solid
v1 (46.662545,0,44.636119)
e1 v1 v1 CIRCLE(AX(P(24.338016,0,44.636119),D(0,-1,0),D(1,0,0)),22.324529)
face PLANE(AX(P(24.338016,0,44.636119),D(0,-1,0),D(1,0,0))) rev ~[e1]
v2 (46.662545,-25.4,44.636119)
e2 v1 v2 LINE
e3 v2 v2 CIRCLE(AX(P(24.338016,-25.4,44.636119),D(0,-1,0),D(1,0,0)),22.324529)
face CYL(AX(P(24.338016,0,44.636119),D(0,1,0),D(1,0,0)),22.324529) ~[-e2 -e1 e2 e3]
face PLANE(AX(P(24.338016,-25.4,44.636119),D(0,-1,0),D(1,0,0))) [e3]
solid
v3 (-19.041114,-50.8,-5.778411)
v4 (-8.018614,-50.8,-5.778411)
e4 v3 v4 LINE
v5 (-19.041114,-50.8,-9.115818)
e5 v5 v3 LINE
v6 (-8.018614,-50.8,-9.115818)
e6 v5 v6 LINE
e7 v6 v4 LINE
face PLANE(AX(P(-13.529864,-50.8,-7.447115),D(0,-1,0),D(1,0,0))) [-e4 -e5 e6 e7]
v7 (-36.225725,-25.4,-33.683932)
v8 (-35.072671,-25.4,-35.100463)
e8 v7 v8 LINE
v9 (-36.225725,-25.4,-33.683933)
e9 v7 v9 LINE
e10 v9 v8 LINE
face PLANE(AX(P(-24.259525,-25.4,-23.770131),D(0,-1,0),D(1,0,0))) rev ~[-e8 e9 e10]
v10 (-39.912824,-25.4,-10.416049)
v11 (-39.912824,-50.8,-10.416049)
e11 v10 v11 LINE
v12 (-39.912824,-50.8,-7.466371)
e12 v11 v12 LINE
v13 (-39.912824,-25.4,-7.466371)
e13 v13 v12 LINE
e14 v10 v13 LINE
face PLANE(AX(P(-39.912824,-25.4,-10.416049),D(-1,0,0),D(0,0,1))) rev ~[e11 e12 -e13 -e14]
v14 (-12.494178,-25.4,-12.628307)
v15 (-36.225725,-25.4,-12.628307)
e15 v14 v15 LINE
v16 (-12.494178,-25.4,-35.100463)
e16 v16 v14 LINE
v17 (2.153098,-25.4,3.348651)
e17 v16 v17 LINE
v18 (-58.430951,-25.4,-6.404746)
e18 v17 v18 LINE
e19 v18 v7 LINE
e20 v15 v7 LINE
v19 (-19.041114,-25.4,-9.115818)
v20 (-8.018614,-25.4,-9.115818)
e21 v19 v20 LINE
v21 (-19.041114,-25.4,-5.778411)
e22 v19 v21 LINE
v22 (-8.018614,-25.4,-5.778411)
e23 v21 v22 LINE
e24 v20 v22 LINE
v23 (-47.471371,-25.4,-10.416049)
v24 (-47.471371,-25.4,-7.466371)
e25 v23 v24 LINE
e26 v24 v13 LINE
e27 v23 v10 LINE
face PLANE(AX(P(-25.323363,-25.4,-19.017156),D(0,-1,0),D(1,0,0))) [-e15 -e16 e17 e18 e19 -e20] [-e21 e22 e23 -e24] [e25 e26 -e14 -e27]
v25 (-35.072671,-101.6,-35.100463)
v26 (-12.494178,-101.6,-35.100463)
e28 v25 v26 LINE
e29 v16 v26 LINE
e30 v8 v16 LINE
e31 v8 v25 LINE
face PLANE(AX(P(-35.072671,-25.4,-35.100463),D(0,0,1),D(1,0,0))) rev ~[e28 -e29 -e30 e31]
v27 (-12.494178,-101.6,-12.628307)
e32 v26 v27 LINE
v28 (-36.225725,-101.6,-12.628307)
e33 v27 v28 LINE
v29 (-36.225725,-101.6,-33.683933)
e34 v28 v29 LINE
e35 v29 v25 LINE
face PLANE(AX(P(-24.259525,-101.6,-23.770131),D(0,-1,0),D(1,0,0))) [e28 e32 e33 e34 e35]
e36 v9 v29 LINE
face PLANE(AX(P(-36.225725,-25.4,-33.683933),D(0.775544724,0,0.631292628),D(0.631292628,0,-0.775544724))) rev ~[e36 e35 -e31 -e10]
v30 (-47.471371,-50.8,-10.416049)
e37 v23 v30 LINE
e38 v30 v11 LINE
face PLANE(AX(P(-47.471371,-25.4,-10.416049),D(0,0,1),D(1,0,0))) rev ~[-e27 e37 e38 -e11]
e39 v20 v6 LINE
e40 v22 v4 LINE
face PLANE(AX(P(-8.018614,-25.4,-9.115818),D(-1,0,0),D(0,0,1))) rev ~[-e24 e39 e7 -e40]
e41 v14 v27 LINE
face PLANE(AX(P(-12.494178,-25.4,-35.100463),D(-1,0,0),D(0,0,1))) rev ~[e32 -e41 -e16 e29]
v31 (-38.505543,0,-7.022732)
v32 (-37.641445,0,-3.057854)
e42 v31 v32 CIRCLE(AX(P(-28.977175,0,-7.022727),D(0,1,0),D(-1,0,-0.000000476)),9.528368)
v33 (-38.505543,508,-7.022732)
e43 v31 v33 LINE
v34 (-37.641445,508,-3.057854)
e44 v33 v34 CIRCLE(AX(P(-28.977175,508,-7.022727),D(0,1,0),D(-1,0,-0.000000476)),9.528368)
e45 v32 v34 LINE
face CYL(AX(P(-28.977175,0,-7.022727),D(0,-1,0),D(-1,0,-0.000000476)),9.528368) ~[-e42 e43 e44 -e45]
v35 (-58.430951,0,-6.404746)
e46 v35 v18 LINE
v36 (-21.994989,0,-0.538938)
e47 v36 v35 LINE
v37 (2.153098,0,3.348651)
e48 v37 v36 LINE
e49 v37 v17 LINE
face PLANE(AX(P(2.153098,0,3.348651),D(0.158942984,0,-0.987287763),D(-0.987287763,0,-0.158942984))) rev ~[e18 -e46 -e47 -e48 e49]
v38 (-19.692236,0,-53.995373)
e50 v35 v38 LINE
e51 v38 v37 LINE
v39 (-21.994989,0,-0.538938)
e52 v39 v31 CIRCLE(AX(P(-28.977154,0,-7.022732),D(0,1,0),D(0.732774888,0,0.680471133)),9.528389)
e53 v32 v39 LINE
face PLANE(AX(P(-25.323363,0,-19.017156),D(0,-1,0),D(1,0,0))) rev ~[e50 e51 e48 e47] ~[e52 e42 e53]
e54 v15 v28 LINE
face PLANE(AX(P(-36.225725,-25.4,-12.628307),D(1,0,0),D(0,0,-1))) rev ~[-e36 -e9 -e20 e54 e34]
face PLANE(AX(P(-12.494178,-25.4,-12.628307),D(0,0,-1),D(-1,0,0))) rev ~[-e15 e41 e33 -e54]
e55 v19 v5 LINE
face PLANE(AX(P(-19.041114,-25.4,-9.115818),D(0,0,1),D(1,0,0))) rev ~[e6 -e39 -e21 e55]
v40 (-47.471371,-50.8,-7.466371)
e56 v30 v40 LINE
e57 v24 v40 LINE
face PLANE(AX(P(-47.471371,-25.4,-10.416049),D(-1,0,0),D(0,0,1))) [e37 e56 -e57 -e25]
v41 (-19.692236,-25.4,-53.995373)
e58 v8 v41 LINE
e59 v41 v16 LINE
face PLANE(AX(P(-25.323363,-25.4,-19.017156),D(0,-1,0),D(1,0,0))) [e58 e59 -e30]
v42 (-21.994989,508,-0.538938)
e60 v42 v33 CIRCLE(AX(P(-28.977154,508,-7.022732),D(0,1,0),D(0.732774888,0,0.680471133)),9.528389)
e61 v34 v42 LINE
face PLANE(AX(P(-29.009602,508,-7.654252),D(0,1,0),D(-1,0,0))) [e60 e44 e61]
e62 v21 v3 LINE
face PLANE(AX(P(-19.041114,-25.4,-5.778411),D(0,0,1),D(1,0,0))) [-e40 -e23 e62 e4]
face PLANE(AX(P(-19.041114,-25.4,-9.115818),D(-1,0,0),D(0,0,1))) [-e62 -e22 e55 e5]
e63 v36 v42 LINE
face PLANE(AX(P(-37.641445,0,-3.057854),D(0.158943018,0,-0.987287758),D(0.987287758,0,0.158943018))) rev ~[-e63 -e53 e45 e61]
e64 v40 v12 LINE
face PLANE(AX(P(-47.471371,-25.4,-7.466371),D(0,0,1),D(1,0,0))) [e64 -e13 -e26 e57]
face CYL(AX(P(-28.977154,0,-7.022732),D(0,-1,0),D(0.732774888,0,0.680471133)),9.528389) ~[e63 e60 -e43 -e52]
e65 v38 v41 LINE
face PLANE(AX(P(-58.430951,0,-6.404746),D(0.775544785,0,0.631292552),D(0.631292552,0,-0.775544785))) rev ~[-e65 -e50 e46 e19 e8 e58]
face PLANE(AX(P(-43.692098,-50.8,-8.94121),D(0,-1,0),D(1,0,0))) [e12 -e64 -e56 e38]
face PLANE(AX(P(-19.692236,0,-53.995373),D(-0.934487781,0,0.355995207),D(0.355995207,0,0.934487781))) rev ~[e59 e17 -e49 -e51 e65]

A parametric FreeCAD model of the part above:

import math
import FreeCAD as App
import Part
import Sketcher

V = App.Vector
Q = App.Units.Quantity


def add_polygon(sketch, points):
    """Adds a closed chain of lines whose ends are joined by coincident constraints."""
    first, n = sketch.GeometryCount, len(points)
    for a, b in zip(points, points[1:] + points[:1]):
        sketch.addGeometry(Part.LineSegment(App.Vector(*a, 0), App.Vector(*b, 0)), False)
    for i in range(n):
        sketch.addConstraint(Sketcher.Constraint("Coincident", first + i, 2, first + (i + 1) % n, 1))

doc = App.newDocument("Part")
body = doc.addObject("PartDesign::Body", "Body")
body.AllowCompound = True

# Sketch on XZ plane
sketch1 = body.newObject("Sketcher::SketchObject", "Sketch")
sketch1.AttachmentSupport = (doc.getObject("XZ_Plane"), [""])
sketch1.MapMode = "FlatFace"
sketch1.addGeometry(Part.Circle(V(24.338016, 44.636119, 0), V(0, 0, 1), 22.324529), False)  # 0
add_polygon(sketch1, [(-19.692236, -53.995373), (2.153098, 3.348651), (-58.430951, -6.404746)])  # lines 1-3
sketch1.addConstraint(Sketcher.Constraint("Equal", 1, 2))
sketch1.addConstraint(Sketcher.Constraint("Equal", 2, 3))
sketch1.addConstraint(Sketcher.Constraint("Diameter", 0, Q("44.649058 mm")))
sketch1.addConstraint(Sketcher.Constraint("DistanceX", -1, 1, 1, 2, Q("2.153098 mm")))
sketch1.addConstraint(Sketcher.Constraint("DistanceY", -1, 1, 0, 3, Q("44.636119 mm")))
sketch1.addConstraint(Sketcher.Constraint("DistanceY", -1, 1, 1, 2, Q("3.348651 mm")))
sketch1.addConstraint(Sketcher.Constraint("DistanceX", 2, 2, -1, 1, Q("58.430951 mm")))
sketch1.addConstraint(Sketcher.Constraint("Distance", 1, Q("61.364124 mm")))
sketch1.addConstraint(Sketcher.Constraint("DistanceX", -1, 1, 0, 3, Q("24.338016 mm")))
pad1 = body.newObject("PartDesign::Pad", "Pad")
pad1.Profile = sketch1
pad1.Length = Q("1 in")

# Sketch on XZ plane
sketch2 = body.newObject("Sketcher::SketchObject", "Sketch001")
sketch2.AttachmentSupport = (doc.getObject("XZ_Plane"), [""])
sketch2.MapMode = "FlatFace"
sketch2.addGeometry(Part.ArcOfCircle(Part.Circle(V(-28.977154, -7.022732, 0), V(0, 0, 1), 9.528389), math.radians(-180), math.radians(42.88047)), False)
sketch2.addGeometry(Part.ArcOfCircle(Part.Circle(V(-28.977175, -7.022727, 0), V(0, 0, 1), 9.528368), math.radians(155.410601), math.radians(180.000027)), False)
sketch2.addGeometry(Part.LineSegment(V(-37.641445, -3.057854, 0), V(-21.994989, -0.538938, 0)), False)
sketch2.addConstraint(Sketcher.Constraint("Tangent", 0, 1, 1, 2))
sketch2.addConstraint(Sketcher.Constraint("Coincident", 1, 1, 2, 1))
sketch2.addConstraint(Sketcher.Constraint("Coincident", 2, 2, 0, 2))
sketch2.addConstraint(Sketcher.Constraint("Radius", 0, Q("9.528389 mm")))
sketch2.addConstraint(Sketcher.Constraint("Radius", 1, Q("9.528368 mm")))
sketch2.addConstraint(Sketcher.Constraint("Distance", 2, Q("15.847919 mm")))
sketch2.addConstraint(Sketcher.Constraint("DistanceY", 0, 3, -1, 1, Q("7.022732 mm")))
sketch2.addConstraint(Sketcher.Constraint("DistanceY", 0, 1, -1, 1, Q("7.022732 mm")))
sketch2.addConstraint(Sketcher.Constraint("DistanceX", 2, 2, -1, 1, Q("21.994989 mm")))
sketch2.addConstraint(Sketcher.Constraint("DistanceY", 2, 2, -1, 1, Q("0.538938 mm")))
pad2 = body.newObject("PartDesign::Pad", "Pad001")
pad2.Profile = sketch2
pad2.Length = Q("20 in")
pad2.Reversed = True

# Sketch on XZ plane
sketch3 = body.newObject("Sketcher::SketchObject", "Sketch002")
sketch3.AttachmentSupport = (doc.getObject("XZ_Plane"), [""])
sketch3.MapMode = "FlatFace"
sketch3.AttachmentOffset = App.Placement(V(0, 0, 1 * 25.4), App.Rotation())
add_polygon(sketch3, [(-12.494178, -12.628307), (-36.225725, -12.628307), (-36.225725, -33.683933), (-35.072671, -35.100463), (-12.494178, -35.100463)])  # lines 0-4
sketch3.addConstraint(Sketcher.Constraint("Horizontal", 0))
sketch3.addConstraint(Sketcher.Constraint("Vertical", 1))
sketch3.addConstraint(Sketcher.Constraint("Horizontal", 3))
sketch3.addConstraint(Sketcher.Constraint("Vertical", 4))
sketch3.addConstraint(Sketcher.Constraint("DistanceX", 0, 2, 0, 1, Q("23.731547 mm")))
sketch3.addConstraint(Sketcher.Constraint("DistanceX", 3, 1, 3, 2, Q("22.578493 mm")))
sketch3.addConstraint(Sketcher.Constraint("DistanceY", 1, 2, 1, 1, Q("21.055626 mm")))
sketch3.addConstraint(Sketcher.Constraint("DistanceY", 4, 1, 4, 2, Q("22.472156 mm")))
sketch3.addConstraint(Sketcher.Constraint("DistanceX", 2, 2, -1, 1, Q("35.072671 mm")))
sketch3.addConstraint(Sketcher.Constraint("DistanceY", 0, 2, -1, 1, Q("12.628307 mm")))
pad3 = body.newObject("PartDesign::Pad", "Pad002")
pad3.Profile = sketch3
pad3.Length = Q("3 in")

# Sketch on XZ plane
sketch4 = body.newObject("Sketcher::SketchObject", "Sketch003")
sketch4.AttachmentSupport = (doc.getObject("XZ_Plane"), [""])
sketch4.MapMode = "FlatFace"
sketch4.AttachmentOffset = App.Placement(V(0, 0, 1 * 25.4), App.Rotation())
add_polygon(sketch4, [(-47.471371, -7.466371), (-47.471371, -10.416049), (-39.912824, -10.416049), (-39.912824, -7.466371)])  # lines 0-3
sketch4.addConstraint(Sketcher.Constraint("Vertical", 0))
sketch4.addConstraint(Sketcher.Constraint("Horizontal", 1))
sketch4.addConstraint(Sketcher.Constraint("Vertical", 2))
sketch4.addConstraint(Sketcher.Constraint("Horizontal", 3))
sketch4.addConstraint(Sketcher.Constraint("DistanceX", 1, 1, 1, 2, Q("7.558547 mm")))
sketch4.addConstraint(Sketcher.Constraint("DistanceY", 0, 2, 0, 1, Q("2.949678 mm")))
sketch4.addConstraint(Sketcher.Constraint("DistanceX", 0, 2, -1, 1, Q("47.471371 mm")))
sketch4.addConstraint(Sketcher.Constraint("DistanceY", 0, 2, -1, 1, Q("10.416049 mm")))
pad4 = body.newObject("PartDesign::Pad", "Pad003")
pad4.Profile = sketch4
pad4.Length = Q("1 in")

# Sketch on XZ plane
sketch5 = body.newObject("Sketcher::SketchObject", "Sketch004")
sketch5.AttachmentSupport = (doc.getObject("XZ_Plane"), [""])
sketch5.MapMode = "FlatFace"
sketch5.AttachmentOffset = App.Placement(V(0, 0, 1 * 25.4), App.Rotation())
add_polygon(sketch5, [(-19.041114, -5.778411), (-19.041114, -9.115818), (-8.018614, -9.115818), (-8.018614, -5.778411)])  # lines 0-3
sketch5.addConstraint(Sketcher.Constraint("Vertical", 0))
sketch5.addConstraint(Sketcher.Constraint("Horizontal", 1))
sketch5.addConstraint(Sketcher.Constraint("Vertical", 2))
sketch5.addConstraint(Sketcher.Constraint("Horizontal", 3))
sketch5.addConstraint(Sketcher.Constraint("DistanceX", 1, 1, 1, 2, Q("11.0225 mm")))
sketch5.addConstraint(Sketcher.Constraint("DistanceY", 0, 2, 0, 1, Q("3.337407 mm")))
sketch5.addConstraint(Sketcher.Constraint("DistanceY", 0, 2, -1, 1, Q("9.115818 mm")))
sketch5.addConstraint(Sketcher.Constraint("DistanceX", 0, 2, -1, 1, Q("19.041114 mm")))
pad5 = body.newObject("PartDesign::Pad", "Pad004")
pad5.Profile = sketch5
pad5.Length = Q("1 in")

doc.recompute()
